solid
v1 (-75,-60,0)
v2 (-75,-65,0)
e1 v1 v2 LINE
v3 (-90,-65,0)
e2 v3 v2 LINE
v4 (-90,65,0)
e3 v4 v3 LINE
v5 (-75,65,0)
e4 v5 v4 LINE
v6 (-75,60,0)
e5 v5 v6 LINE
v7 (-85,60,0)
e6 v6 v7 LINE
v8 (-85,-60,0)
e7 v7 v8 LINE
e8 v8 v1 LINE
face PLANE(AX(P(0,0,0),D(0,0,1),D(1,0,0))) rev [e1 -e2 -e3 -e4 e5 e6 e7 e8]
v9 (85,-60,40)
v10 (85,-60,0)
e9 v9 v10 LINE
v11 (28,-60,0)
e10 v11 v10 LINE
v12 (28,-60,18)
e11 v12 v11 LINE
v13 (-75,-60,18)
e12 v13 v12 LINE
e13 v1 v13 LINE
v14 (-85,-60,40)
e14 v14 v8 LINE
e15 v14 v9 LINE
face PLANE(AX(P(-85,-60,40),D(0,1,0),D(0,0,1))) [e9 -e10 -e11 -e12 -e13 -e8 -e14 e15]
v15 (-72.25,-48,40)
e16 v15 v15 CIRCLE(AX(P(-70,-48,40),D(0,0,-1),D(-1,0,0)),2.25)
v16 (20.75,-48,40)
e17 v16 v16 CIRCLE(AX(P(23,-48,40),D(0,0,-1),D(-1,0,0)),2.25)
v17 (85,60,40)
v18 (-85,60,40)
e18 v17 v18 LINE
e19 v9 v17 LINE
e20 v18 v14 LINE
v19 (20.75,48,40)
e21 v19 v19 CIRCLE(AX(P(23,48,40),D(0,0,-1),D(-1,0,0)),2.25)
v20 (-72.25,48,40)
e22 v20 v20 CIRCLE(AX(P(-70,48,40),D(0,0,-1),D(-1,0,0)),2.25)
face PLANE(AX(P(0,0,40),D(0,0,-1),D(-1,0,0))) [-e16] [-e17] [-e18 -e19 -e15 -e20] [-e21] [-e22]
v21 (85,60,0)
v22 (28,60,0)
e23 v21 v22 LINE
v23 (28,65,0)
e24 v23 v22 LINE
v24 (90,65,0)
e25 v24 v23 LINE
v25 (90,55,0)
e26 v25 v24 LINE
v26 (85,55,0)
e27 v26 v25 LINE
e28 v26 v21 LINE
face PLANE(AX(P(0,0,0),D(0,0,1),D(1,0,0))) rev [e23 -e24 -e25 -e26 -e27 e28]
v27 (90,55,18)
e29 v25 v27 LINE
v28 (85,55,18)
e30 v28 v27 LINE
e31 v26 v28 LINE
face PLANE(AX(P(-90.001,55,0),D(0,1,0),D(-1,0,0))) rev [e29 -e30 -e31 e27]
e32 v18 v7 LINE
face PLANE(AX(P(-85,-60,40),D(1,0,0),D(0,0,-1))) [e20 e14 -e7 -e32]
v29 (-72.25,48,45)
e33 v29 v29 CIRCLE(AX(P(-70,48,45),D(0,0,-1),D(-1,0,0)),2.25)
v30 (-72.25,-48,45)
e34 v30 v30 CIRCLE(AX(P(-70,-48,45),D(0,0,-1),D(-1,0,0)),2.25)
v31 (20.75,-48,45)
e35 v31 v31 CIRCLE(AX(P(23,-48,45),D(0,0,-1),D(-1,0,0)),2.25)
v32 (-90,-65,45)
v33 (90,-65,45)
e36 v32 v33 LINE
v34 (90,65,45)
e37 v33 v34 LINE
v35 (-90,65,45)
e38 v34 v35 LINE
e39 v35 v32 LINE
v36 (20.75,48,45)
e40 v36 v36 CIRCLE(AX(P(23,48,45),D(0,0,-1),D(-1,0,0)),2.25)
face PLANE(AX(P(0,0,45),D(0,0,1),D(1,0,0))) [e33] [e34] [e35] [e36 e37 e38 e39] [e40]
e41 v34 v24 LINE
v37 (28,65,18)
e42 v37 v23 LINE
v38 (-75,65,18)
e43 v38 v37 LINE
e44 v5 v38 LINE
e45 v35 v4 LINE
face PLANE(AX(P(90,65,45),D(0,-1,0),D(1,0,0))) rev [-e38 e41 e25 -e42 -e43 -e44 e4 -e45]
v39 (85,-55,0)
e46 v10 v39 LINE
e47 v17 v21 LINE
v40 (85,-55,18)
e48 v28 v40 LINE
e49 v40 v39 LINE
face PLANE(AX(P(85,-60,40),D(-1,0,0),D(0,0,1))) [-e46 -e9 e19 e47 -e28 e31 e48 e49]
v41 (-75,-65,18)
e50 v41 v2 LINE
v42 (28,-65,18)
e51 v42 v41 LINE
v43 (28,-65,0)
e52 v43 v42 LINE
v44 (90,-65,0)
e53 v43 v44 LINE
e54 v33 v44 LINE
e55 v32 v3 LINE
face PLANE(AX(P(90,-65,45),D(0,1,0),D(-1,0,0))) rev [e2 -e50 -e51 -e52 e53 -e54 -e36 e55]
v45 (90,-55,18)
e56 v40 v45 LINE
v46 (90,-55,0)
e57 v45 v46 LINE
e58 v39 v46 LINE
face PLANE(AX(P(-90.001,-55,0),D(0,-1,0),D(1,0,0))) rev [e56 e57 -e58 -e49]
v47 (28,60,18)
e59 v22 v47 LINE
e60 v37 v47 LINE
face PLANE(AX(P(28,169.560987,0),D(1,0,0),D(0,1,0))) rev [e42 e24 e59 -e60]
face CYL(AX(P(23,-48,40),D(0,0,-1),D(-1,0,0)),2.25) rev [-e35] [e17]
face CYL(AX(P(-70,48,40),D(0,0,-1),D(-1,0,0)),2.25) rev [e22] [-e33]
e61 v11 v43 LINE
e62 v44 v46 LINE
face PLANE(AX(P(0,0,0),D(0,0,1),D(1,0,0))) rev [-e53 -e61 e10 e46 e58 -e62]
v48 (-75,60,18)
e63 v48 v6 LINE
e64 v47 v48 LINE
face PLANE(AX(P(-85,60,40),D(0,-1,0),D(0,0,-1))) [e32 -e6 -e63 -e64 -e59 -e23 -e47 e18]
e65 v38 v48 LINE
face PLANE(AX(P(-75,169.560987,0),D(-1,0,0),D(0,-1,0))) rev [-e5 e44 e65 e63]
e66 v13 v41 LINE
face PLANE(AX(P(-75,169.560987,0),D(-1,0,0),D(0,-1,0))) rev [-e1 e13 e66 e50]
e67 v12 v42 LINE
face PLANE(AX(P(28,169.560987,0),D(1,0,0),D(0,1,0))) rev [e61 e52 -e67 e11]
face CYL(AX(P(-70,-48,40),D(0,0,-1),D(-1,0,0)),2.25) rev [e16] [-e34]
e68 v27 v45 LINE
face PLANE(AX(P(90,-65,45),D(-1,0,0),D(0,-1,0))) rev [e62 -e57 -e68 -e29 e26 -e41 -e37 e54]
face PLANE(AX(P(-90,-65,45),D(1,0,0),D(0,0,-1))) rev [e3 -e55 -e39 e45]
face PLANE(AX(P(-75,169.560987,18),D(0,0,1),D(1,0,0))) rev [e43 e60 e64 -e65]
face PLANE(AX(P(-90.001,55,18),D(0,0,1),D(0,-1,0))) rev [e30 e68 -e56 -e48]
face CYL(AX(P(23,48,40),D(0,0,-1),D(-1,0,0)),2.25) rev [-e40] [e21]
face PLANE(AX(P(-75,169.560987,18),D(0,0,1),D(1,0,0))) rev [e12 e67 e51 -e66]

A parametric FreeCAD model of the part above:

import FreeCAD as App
import Part
import Sketcher


def add_polygon(sketch, points):
    """Adds a closed chain of lines whose ends are joined by coincident constraints."""
    first, n = sketch.GeometryCount, len(points)
    for a, b in zip(points, points[1:] + points[:1]):
        sketch.addGeometry(Part.LineSegment(App.Vector(*a, 0), App.Vector(*b, 0)), False)
    for i in range(n):
        sketch.addConstraint(Sketcher.Constraint("Coincident", first + i, 2, first + (i + 1) % n, 1))

doc = App.newDocument("Part")
body = doc.addObject("PartDesign::Body", "Body")

# Sketch on XY plane
sketch1 = doc.addObject("Sketcher::SketchObject", "Sketch")
body.addObject(sketch1)
sketch1.AttachmentSupport = (doc.XY_Plane, [""])
sketch1.MapMode = "FlatFace"
add_polygon(sketch1, [(-90, 65), (-90, -65), (90, -65), (90, 65)])  # lines 0-3
sketch1.addConstraint(Sketcher.Constraint("Vertical", 0))
sketch1.addConstraint(Sketcher.Constraint("Horizontal", 1))
sketch1.addConstraint(Sketcher.Constraint("Vertical", 2))
sketch1.addConstraint(Sketcher.Constraint("Horizontal", 3))
sketch1.addConstraint(Sketcher.Constraint("Symmetric", 0, 2, 2, 2, -1, 1))
sketch1.addConstraint(Sketcher.Constraint("DistanceX", 1, 1, 1, 2, 180.0))
sketch1.addConstraint(Sketcher.Constraint("DistanceY", 0, 2, 0, 1, 130.0))
pad1 = doc.addObject("PartDesign::Pad", "Pad")
body.addObject(pad1)
pad1.Profile = sketch1
pad1.Length = 45

# Sketch on XY plane
sketch2 = doc.addObject("Sketcher::SketchObject", "Sketch001")
body.addObject(sketch2)
sketch2.AttachmentSupport = (doc.XY_Plane, [""])
sketch2.MapMode = "FlatFace"
add_polygon(sketch2, [(-85, 60), (-85, -60), (85, -60), (85, 60)])  # lines 0-3
sketch2.addConstraint(Sketcher.Constraint("Vertical", 0))
sketch2.addConstraint(Sketcher.Constraint("Horizontal", 1))
sketch2.addConstraint(Sketcher.Constraint("Vertical", 2))
sketch2.addConstraint(Sketcher.Constraint("Horizontal", 3))
sketch2.addConstraint(Sketcher.Constraint("Symmetric", 0, 2, 2, 2, -1, 1))
sketch2.addConstraint(Sketcher.Constraint("DistanceX", 1, 1, 1, 2, 170.0))
sketch2.addConstraint(Sketcher.Constraint("DistanceY", 0, 2, 0, 1, 120.0))
pocket1 = doc.addObject("PartDesign::Pocket", "Pocket")
body.addObject(pocket1)
pocket1.Profile = sketch2
pocket1.Length = 40
pocket1.Reversed = True

# Sketch on XY plane
sketch3 = doc.addObject("Sketcher::SketchObject", "Sketch002")
body.addObject(sketch3)
sketch3.AttachmentSupport = (doc.XY_Plane, [""])
sketch3.MapMode = "FlatFace"
sketch3.AttachmentOffset = App.Placement(App.Vector(0, 0, 40), App.Rotation())
sketch3.addGeometry(Part.Circle(App.Vector(23, -48, 0), App.Vector(0, 0, 1), 2.25), False)
sketch3.addGeometry(Part.Circle(App.Vector(-70, -48, 0), App.Vector(0, 0, 1), 2.25), False)
sketch3.addGeometry(Part.Circle(App.Vector(-70, 48, 0), App.Vector(0, 0, 1), 2.25), False)
sketch3.addGeometry(Part.Circle(App.Vector(23, 48, 0), App.Vector(0, 0, 1), 2.25), False)
sketch3.addConstraint(Sketcher.Constraint("Equal", 0, 1))
sketch3.addConstraint(Sketcher.Constraint("Equal", 1, 2))
sketch3.addConstraint(Sketcher.Constraint("Equal", 2, 3))
sketch3.addConstraint(Sketcher.Constraint("Symmetric", 1, 3, 2, 3, -1))
sketch3.addConstraint(Sketcher.Constraint("Symmetric", 0, 3, 3, 3, -1))
sketch3.addConstraint(Sketcher.Constraint("Horizontal", 0, 3, 1, 3))
sketch3.addConstraint(Sketcher.Constraint("Diameter", 0, 4.5))
sketch3.addConstraint(Sketcher.Constraint("DistanceX", -1, 1, 0, 3, 23.0))
sketch3.addConstraint(Sketcher.Constraint("DistanceY", 0, 3, -1, 1, 48.0))
sketch3.addConstraint(Sketcher.Constraint("DistanceX", 1, 3, -1, 1, 70.0))
doc.recompute()
hole = doc.addObject("PartDesign::Hole", "Hole")
body.addObject(hole)
hole.Profile = sketch3
hole.ThreadType = "None"
hole.Diameter = 4.5
hole.DepthType = "ThroughAll"
hole.Reversed = True

# Sketch on YZ plane
sketch4 = doc.addObject("Sketcher::SketchObject", "Sketch003")
body.addObject(sketch4)
sketch4.AttachmentSupport = (doc.YZ_Plane, [""])
sketch4.MapMode = "FlatFace"
sketch4.AttachmentOffset = App.Placement(App.Vector(0, 0, 90), App.Rotation())
add_polygon(sketch4, [(55, 18), (-55, 18), (-55, 0), (55, 0)])  # lines 0-3
sketch4.addConstraint(Sketcher.Constraint("Horizontal", 0))
sketch4.addConstraint(Sketcher.Constraint("Vertical", 1))
sketch4.addConstraint(Sketcher.Constraint("Horizontal", 2))
sketch4.addConstraint(Sketcher.Constraint("Vertical", 3))
sketch4.addConstraint(Sketcher.Constraint("Symmetric", 1, 2, 2, 2, -1, 1))
sketch4.addConstraint(Sketcher.Constraint("DistanceX", 0, 2, 0, 1, 110.0))
sketch4.addConstraint(Sketcher.Constraint("DistanceY", 1, 2, 1, 1, 18.0))
pocket2 = doc.addObject("PartDesign::Pocket", "Pocket001")
body.addObject(pocket2)
pocket2.Profile = sketch4
pocket2.Type = "UpToFirst"

# Sketch on XZ plane
sketch5 = doc.addObject("Sketcher::SketchObject", "Sketch004")
body.addObject(sketch5)
sketch5.AttachmentSupport = (doc.XZ_Plane, [""])
sketch5.MapMode = "FlatFace"
sketch5.AttachmentOffset = App.Placement(App.Vector(0, 0, 65), App.Rotation())
add_polygon(sketch5, [(-75, 18), (-75, 0), (28, 0), (28, 18)])  # lines 0-3
sketch5.addConstraint(Sketcher.Constraint("Vertical", 0))
sketch5.addConstraint(Sketcher.Constraint("Horizontal", 1))
sketch5.addConstraint(Sketcher.Constraint("Vertical", 2))
sketch5.addConstraint(Sketcher.Constraint("Horizontal", 3))
sketch5.addConstraint(Sketcher.Constraint("PointOnObject", 0, 2, -1))
sketch5.addConstraint(Sketcher.Constraint("DistanceX", 1, 1, 1, 2, 103.0))
sketch5.addConstraint(Sketcher.Constraint("DistanceY", 0, 2, 0, 1, 18.0))
sketch5.addConstraint(Sketcher.Constraint("DistanceX", 0, 2, -1, 1, 75.0))
pocket3 = doc.addObject("PartDesign::Pocket", "Pocket002")
body.addObject(pocket3)
pocket3.Profile = sketch5
pocket3.Length = 130

doc.recompute()
